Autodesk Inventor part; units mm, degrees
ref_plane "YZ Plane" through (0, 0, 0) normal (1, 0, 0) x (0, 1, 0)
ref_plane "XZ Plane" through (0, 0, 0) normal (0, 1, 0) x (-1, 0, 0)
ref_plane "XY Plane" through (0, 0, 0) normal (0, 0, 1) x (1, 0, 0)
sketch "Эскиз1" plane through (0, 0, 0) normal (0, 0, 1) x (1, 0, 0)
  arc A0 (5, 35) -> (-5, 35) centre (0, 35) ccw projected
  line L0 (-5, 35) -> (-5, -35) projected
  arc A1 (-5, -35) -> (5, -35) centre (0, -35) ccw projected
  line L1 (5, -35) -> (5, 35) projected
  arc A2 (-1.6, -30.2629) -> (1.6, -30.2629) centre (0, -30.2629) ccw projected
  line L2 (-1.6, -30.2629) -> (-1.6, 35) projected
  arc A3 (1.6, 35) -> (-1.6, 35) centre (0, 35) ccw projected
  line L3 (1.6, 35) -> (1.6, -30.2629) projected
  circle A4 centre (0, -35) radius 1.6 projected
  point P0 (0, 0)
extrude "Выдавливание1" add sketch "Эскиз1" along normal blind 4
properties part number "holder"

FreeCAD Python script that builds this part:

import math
import FreeCAD as App
import Part
import Sketcher
from FreeCAD import Vector
Q = App.Units.Quantity

doc = App.newDocument("Part")
body = doc.addObject("PartDesign::Body", "Body")

# Sketch on XY plane
sketch1 = body.newObject("Sketcher::SketchObject", "Sketch")
sketch1.AttachmentSupport = (doc.getObject("XY_Plane"), [""])
sketch1.MapMode = "FlatFace"
sketch1.addGeometry([
    Part.LineSegment(Vector(5, -35, 0), Vector(5, 35, 0)),  # 0
    Part.ArcOfCircle(Part.Circle(Vector(0, 35, 0), Vector(0, 0, 1), 5), math.radians(0), math.radians(180)),  # 1
    Part.LineSegment(Vector(-5, 35, 0), Vector(-5, -35, 0)),  # 2
    Part.ArcOfCircle(Part.Circle(Vector(0, -35, 0), Vector(0, 0, 1), 5), math.radians(180), math.radians(360)),  # 3
    Part.Circle(Vector(0, -35, 0), Vector(0, 0, 1), 1.6),  # 4
    Part.ArcOfCircle(Part.Circle(Vector(0, -30.3, 0), Vector(0, 0, 1), 1.6), math.radians(180), math.radians(360)),  # 5
    Part.LineSegment(Vector(-1.6, -30.3, 0), Vector(-1.6, 35, 0)),  # 6
    Part.ArcOfCircle(Part.Circle(Vector(0, 35, 0), Vector(0, 0, 1), 1.6), math.radians(0), math.radians(180)),  # 7
    Part.LineSegment(Vector(1.6, 35, 0), Vector(1.6, -30.3, 0)),  # 8
], False)
sketch1.addConstraint([
    Sketcher.Constraint("Tangent", 0, 2, 1, 1),
    Sketcher.Constraint("Tangent", 1, 2, 2, 1),
    Sketcher.Constraint("Tangent", 2, 2, 3, 1),
    Sketcher.Constraint("Tangent", 3, 2, 0, 1),
    Sketcher.Constraint("Tangent", 5, 1, 6, 1),
    Sketcher.Constraint("Tangent", 6, 2, 7, 2),
    Sketcher.Constraint("Tangent", 7, 1, 8, 1),
    Sketcher.Constraint("Tangent", 8, 2, 5, 2),
    Sketcher.Constraint("Vertical", 0),
    Sketcher.Constraint("Vertical", 2),
    Sketcher.Constraint("Vertical", 6),
    Sketcher.Constraint("Vertical", 8),
    Sketcher.Constraint("Coincident", 4, 3, 3, 3),
    Sketcher.Constraint("Coincident", 7, 3, 1, 3),
    Sketcher.Constraint("Equal", 4, 5),
    Sketcher.Constraint("Symmetric", 1, 3, 3, 3, -1, 1),
    Sketcher.Constraint("Radius", 1, Q("5 mm")),
    Sketcher.Constraint("Diameter", 4, Q("3.2 mm")),
    Sketcher.Constraint("DistanceY", 0, 1, 0, 2, Q("70 mm")),
    Sketcher.Constraint("DistanceY", 6, 1, 6, 2, Q("65.263 mm")),
])
pad1 = body.newObject("PartDesign::Pad", "Pad")
pad1.Profile = sketch1
pad1.Length = 4

doc.recompute()
